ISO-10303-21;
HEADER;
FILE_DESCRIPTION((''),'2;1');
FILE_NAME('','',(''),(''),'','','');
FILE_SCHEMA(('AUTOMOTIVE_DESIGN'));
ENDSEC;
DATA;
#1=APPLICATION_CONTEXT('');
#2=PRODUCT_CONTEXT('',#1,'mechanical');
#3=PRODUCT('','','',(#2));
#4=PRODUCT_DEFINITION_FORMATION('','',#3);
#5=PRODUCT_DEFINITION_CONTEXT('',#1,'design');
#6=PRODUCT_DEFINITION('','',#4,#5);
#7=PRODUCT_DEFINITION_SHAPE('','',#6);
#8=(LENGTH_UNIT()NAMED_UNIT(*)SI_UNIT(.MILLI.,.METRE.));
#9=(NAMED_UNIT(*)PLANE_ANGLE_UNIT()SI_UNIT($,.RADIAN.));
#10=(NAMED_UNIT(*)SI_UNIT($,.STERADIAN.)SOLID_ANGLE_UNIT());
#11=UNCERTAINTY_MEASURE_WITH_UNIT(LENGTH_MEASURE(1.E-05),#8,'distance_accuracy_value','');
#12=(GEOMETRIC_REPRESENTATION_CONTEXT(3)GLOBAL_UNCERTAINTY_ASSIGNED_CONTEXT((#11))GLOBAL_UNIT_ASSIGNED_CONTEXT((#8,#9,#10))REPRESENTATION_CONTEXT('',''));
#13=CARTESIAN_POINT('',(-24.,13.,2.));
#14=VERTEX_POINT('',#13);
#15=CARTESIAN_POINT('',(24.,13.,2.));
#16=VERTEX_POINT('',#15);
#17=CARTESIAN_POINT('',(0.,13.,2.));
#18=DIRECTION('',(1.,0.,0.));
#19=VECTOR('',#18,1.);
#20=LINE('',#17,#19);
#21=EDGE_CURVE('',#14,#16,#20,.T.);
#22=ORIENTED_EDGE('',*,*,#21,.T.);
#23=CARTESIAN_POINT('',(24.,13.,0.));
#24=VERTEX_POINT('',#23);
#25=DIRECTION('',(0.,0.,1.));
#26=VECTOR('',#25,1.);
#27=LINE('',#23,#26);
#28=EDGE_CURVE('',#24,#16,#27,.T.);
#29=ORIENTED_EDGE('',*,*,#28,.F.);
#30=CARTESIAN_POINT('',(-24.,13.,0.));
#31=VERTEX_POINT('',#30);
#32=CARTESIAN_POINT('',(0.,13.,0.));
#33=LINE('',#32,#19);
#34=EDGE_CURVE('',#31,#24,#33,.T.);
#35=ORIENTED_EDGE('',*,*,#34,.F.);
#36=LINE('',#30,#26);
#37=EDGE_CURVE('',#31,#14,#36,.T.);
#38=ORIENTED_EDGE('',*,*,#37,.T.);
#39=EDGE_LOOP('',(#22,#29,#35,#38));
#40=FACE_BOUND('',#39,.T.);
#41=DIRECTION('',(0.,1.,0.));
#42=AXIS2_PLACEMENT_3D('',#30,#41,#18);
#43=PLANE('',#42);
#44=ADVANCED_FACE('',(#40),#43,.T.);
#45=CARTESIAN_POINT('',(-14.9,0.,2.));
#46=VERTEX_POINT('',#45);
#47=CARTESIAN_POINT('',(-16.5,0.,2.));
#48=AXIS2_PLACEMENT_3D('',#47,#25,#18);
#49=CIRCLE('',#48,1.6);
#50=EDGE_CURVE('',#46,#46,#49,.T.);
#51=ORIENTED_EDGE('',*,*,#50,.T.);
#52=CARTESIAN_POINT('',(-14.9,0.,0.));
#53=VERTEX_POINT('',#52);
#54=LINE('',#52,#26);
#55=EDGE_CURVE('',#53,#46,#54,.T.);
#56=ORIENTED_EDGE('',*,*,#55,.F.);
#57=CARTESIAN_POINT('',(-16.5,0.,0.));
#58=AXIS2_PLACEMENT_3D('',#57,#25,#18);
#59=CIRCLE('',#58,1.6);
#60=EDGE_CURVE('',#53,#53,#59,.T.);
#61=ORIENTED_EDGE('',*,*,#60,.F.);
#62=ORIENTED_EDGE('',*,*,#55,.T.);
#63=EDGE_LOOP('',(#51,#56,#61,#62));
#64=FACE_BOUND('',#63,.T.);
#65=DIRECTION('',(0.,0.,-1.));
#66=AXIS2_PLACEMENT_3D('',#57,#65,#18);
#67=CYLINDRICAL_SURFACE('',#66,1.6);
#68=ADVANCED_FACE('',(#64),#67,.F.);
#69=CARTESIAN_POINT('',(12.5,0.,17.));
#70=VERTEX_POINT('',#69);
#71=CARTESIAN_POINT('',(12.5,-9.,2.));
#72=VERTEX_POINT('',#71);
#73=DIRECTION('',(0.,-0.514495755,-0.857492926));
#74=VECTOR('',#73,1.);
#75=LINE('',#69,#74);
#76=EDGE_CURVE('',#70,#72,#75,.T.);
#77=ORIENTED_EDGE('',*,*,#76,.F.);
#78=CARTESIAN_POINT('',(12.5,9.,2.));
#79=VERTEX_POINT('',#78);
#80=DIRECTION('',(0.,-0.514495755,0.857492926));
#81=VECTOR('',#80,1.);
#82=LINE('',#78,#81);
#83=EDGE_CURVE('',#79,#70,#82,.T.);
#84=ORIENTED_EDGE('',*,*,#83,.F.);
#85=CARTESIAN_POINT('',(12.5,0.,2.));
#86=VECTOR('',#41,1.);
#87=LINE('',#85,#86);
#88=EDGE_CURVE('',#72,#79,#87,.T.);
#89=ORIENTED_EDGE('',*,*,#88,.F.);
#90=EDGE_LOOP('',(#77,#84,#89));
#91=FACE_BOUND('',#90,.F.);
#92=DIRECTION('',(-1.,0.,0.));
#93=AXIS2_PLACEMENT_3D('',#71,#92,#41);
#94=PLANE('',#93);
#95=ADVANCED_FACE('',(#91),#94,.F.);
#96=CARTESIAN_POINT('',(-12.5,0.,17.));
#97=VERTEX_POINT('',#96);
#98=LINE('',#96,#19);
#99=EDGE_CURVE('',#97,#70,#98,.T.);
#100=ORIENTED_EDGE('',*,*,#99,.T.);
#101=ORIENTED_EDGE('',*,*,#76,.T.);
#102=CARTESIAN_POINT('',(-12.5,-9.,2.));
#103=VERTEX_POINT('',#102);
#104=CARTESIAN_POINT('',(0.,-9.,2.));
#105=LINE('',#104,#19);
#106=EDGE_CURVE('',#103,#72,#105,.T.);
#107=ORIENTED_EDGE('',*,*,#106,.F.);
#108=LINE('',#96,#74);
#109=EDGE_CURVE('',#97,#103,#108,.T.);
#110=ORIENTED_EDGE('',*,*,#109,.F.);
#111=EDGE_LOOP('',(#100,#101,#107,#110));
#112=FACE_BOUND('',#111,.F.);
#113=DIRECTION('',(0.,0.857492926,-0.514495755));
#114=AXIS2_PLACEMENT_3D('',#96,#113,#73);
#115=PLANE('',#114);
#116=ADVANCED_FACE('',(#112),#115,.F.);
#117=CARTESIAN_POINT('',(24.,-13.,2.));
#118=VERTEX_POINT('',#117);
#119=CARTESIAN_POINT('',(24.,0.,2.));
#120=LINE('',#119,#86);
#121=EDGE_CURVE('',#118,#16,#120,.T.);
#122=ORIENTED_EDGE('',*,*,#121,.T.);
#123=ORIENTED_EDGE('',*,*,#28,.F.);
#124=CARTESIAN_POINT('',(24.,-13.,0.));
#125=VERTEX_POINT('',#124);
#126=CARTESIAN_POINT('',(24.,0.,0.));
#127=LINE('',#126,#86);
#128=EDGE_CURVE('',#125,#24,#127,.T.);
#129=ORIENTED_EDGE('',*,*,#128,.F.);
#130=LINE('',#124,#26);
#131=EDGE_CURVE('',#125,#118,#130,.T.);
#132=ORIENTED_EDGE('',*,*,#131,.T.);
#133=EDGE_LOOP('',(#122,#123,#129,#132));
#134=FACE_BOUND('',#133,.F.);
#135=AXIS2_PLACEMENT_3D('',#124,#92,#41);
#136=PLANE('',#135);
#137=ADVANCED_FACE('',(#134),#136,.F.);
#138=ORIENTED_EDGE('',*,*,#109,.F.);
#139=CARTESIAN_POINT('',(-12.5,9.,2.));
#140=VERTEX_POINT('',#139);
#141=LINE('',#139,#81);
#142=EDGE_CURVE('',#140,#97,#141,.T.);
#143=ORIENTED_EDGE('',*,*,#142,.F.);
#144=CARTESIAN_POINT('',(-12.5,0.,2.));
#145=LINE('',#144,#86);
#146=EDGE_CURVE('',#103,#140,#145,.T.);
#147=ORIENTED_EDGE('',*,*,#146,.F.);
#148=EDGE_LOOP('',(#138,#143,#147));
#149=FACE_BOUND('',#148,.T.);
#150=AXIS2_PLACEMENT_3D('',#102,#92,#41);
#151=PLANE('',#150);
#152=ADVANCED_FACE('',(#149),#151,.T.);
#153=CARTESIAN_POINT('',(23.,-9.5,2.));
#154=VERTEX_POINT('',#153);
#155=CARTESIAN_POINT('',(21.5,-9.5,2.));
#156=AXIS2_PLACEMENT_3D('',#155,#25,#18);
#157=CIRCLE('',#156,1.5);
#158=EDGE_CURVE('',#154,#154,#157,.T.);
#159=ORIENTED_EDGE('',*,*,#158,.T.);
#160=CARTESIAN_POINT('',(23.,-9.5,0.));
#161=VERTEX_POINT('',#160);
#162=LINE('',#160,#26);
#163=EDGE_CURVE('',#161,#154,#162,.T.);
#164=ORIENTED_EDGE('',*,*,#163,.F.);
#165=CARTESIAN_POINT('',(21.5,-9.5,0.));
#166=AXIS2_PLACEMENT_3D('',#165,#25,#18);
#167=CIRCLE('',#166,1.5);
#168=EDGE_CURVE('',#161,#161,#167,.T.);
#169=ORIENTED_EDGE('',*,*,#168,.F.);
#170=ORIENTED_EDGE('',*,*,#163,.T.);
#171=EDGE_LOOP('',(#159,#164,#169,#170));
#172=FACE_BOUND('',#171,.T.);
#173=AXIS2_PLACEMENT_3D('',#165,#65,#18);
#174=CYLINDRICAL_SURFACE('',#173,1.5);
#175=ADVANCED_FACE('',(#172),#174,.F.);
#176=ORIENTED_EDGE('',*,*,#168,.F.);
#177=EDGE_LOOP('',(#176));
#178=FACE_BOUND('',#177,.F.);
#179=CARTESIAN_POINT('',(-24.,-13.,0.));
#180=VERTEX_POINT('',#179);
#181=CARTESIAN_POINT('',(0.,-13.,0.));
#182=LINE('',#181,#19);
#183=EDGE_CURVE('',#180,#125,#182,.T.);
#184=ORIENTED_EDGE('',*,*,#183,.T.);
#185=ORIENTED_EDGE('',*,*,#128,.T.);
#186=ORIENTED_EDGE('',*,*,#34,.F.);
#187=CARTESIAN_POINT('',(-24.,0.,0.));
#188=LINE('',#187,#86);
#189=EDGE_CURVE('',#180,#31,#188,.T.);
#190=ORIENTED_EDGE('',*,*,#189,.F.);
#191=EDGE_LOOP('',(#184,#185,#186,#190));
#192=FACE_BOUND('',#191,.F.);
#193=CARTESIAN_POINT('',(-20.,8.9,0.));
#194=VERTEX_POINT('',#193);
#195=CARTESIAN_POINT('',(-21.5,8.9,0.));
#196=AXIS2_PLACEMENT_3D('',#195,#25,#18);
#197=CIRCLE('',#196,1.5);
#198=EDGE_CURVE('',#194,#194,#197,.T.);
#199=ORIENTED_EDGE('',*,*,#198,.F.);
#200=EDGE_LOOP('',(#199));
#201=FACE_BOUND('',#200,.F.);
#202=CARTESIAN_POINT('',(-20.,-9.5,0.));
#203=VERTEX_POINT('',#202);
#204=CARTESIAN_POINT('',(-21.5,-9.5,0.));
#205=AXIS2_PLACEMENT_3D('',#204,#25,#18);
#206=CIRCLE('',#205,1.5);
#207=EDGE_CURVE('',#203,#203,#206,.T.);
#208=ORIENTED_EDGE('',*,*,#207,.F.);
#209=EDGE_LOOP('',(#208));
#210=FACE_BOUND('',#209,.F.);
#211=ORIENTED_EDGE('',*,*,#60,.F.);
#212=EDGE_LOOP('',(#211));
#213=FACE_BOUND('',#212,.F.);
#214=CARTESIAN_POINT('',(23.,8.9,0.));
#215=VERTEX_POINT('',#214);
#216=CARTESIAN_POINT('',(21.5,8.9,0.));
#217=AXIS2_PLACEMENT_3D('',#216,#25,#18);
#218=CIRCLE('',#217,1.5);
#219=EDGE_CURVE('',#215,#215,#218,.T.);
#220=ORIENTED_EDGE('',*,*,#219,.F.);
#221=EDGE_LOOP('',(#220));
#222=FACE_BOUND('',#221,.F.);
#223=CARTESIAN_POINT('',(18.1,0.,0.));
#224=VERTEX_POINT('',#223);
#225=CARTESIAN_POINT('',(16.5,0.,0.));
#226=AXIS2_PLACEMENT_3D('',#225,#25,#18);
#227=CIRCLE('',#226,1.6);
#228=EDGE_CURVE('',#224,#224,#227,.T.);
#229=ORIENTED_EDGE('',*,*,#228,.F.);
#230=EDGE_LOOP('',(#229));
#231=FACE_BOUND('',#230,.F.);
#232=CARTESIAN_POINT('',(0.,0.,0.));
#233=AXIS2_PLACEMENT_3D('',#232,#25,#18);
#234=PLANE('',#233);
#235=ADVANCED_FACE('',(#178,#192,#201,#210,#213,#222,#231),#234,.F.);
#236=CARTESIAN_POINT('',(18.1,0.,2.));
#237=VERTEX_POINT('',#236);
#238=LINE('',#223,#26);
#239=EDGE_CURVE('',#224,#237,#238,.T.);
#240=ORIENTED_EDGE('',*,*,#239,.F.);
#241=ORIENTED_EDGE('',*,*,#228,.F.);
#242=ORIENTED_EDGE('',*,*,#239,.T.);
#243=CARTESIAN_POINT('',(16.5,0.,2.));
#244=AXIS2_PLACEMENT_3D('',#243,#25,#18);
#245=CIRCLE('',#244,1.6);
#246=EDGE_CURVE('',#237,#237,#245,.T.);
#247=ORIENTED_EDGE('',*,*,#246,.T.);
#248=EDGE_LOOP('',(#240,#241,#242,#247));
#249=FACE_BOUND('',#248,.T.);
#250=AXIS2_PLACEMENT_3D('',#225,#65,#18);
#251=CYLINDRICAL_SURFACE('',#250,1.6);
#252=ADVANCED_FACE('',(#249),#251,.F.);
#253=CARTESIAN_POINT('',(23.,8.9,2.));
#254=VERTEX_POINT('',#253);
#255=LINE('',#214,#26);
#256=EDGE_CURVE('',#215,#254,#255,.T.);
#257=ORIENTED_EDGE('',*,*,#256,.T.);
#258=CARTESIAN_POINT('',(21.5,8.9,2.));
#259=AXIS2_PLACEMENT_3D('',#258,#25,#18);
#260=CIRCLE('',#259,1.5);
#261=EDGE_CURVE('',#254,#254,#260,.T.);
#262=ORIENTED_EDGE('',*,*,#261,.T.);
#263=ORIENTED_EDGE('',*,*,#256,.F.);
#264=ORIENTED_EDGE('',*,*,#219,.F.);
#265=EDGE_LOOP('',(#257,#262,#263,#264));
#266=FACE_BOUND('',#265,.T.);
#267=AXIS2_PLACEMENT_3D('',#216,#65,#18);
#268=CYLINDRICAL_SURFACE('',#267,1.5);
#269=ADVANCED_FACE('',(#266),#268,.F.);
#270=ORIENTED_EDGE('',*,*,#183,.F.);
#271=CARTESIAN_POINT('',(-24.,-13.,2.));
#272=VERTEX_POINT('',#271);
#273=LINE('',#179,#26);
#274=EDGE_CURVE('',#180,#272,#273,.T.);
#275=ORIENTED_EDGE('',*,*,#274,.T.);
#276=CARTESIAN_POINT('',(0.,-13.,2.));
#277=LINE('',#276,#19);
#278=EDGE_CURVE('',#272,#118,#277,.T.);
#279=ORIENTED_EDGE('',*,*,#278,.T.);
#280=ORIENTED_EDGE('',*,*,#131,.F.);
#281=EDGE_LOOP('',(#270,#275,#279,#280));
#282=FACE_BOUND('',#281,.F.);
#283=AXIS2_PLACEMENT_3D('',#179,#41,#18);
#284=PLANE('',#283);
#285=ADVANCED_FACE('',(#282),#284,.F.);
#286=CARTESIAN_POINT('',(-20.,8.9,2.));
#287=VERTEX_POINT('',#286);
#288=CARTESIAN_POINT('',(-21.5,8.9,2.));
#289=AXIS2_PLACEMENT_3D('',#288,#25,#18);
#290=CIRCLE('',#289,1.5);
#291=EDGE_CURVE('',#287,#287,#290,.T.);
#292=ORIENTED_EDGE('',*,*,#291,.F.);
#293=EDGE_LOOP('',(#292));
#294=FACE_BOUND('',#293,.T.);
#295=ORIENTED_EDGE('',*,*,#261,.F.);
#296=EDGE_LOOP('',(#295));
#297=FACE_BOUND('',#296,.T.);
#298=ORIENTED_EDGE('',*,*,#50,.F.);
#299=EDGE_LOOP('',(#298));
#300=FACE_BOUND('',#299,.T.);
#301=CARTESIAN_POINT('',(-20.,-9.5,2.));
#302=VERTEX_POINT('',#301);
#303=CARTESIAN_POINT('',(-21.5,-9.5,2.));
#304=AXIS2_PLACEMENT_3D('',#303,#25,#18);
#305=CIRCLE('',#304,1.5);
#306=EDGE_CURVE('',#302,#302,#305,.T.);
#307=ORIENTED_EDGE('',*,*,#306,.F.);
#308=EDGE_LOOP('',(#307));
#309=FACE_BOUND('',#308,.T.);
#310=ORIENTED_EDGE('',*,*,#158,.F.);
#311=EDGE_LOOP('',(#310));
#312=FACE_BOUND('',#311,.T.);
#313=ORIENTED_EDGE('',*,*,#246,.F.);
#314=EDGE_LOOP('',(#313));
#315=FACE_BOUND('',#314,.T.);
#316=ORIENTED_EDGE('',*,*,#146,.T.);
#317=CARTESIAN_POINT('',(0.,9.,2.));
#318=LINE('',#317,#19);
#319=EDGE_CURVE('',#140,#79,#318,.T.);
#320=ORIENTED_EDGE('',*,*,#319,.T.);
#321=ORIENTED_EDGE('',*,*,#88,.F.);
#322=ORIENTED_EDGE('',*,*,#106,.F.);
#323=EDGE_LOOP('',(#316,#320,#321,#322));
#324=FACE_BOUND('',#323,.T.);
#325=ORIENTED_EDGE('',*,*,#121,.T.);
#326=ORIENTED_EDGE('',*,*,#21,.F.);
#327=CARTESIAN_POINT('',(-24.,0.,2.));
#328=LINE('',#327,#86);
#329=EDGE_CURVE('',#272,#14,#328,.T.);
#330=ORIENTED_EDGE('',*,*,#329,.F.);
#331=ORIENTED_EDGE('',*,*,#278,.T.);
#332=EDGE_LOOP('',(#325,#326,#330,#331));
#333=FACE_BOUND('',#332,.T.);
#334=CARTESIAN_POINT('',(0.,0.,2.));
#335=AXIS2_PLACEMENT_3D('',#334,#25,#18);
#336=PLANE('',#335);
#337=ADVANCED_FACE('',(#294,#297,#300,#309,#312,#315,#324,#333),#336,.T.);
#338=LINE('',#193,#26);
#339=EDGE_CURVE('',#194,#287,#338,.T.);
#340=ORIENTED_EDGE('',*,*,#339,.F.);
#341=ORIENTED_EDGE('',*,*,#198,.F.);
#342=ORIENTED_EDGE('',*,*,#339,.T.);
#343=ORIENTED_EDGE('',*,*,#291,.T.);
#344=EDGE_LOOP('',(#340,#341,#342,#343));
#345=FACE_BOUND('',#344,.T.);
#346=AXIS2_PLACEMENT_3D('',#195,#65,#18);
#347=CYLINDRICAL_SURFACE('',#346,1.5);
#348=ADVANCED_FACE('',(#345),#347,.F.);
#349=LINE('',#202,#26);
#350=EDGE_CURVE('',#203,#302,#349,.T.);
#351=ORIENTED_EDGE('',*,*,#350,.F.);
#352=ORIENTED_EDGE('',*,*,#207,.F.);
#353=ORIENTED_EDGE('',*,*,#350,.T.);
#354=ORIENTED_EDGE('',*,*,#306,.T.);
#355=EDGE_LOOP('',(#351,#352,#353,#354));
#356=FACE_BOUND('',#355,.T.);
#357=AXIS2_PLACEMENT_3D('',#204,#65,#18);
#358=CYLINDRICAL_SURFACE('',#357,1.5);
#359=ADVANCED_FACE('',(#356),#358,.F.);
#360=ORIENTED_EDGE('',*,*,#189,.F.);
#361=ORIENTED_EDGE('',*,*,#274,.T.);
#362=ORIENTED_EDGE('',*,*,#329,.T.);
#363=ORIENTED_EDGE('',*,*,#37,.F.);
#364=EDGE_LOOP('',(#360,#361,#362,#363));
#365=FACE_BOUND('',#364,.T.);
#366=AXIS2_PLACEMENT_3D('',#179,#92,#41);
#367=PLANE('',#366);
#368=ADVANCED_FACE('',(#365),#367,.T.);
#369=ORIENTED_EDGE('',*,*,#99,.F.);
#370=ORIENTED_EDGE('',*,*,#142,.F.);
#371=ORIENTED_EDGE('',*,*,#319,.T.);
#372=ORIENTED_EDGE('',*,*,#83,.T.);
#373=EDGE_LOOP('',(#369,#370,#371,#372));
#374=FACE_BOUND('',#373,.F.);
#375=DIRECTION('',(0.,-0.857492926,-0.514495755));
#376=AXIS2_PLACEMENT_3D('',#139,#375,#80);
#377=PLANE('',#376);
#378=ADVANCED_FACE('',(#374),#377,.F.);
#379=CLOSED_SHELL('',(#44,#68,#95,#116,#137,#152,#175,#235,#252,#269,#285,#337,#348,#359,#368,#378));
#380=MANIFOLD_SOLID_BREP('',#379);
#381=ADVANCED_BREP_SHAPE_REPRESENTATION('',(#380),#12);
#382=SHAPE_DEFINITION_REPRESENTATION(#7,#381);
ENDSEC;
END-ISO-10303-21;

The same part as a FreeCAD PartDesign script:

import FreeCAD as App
import Part
import Sketcher
from FreeCAD import Vector


def add_polygon(sketch, points):
    """Adds a closed chain of lines whose ends are joined by coincident constraints."""
    first, n = sketch.GeometryCount, len(points)
    for a, b in zip(points, points[1:] + points[:1]):
        sketch.addGeometry(Part.LineSegment(App.Vector(*a, 0), App.Vector(*b, 0)), False)
    for i in range(n):
        sketch.addConstraint(Sketcher.Constraint("Coincident", first + i, 2, first + (i + 1) % n, 1))

doc = App.newDocument("Part")
body = doc.addObject("PartDesign::Body", "Body")

sketch1 = body.newObject("Sketcher::SketchObject", "Sketch")
sketch1.AttachmentSupport = (doc.getObject("XY_Plane"), [""])
sketch1.MapMode = "FlatFace"
add_polygon(sketch1, [(-24, 13), (-24, -13), (24, -13), (24, 13)])
sketch1.addGeometry(Part.Circle(Vector(-21.5, -9.5, 0), Vector(0, 0, 1), 1.5), False)
sketch1.addGeometry(Part.Circle(Vector(21.5, -9.5, 0), Vector(0, 0, 1), 1.5), False)
sketch1.addGeometry(Part.Circle(Vector(-16.5, 0, 0), Vector(0, 0, 1), 1.6), False)
sketch1.addGeometry(Part.Circle(Vector(-21.5, 8.9, 0), Vector(0, 0, 1), 1.5), False)
sketch1.addGeometry(Part.Circle(Vector(16.5, 0, 0), Vector(0, 0, 1), 1.6), False)
sketch1.addGeometry(Part.Circle(Vector(21.5, 8.9, 0), Vector(0, 0, 1), 1.5), False)
sketch1.addConstraint(Sketcher.Constraint("Vertical", 0))
sketch1.addConstraint(Sketcher.Constraint("Horizontal", 1))
sketch1.addConstraint(Sketcher.Constraint("Vertical", 2))
sketch1.addConstraint(Sketcher.Constraint("Horizontal", 3))
sketch1.addConstraint(Sketcher.Constraint("Equal", 4, 5))
sketch1.addConstraint(Sketcher.Constraint("Equal", 5, 7))
sketch1.addConstraint(Sketcher.Constraint("Equal", 6, 8))
sketch1.addConstraint(Sketcher.Constraint("Equal", 7, 9))
sketch1.addConstraint(Sketcher.Constraint("Symmetric", 6, 3, 8, 3, -1, 1))
sketch1.addConstraint(Sketcher.Constraint("Symmetric", 0, 2, 2, 2, -1, 1))
sketch1.addConstraint(Sketcher.Constraint("Symmetric", 4, 3, 5, 3, -2))
sketch1.addConstraint(Sketcher.Constraint("Symmetric", 7, 3, 9, 3, -2))
sketch1.addConstraint(Sketcher.Constraint("PointOnObject", 6, 3, -1))
sketch1.addConstraint(Sketcher.Constraint("Vertical", 4, 3, 7, 3))
sketch1.addConstraint(Sketcher.Constraint("Diameter", 4, 3.0))
sketch1.addConstraint(Sketcher.Constraint("Diameter", 6, 3.2))
sketch1.addConstraint(Sketcher.Constraint("DistanceX", 1, 1, 1, 2, 48.0))
sketch1.addConstraint(Sketcher.Constraint("DistanceY", 0, 2, 0, 1, 26.0))
sketch1.addConstraint(Sketcher.Constraint("DistanceX", 4, 3, 5, 3, 43.0))
sketch1.addConstraint(Sketcher.Constraint("DistanceX", 4, 3, 6, 3, 5.0))
sketch1.addConstraint(Sketcher.Constraint("DistanceY", 4, 3, -1, 1, 9.5))
sketch1.addConstraint(Sketcher.Constraint("DistanceY", -1, 1, 7, 3, 8.9))
pad1 = body.newObject("PartDesign::Pad", "Pad")
pad1.Profile = sketch1
pad1.Length = 2

sketch2 = body.newObject("Sketcher::SketchObject", "Sketch001")
sketch2.AttachmentSupport = (doc.getObject("XY_Plane"), [""])
sketch2.MapMode = "FlatFace"
sketch2.AttachmentOffset = App.Placement(Vector(0, 0, 2), App.Rotation())
add_polygon(sketch2, [(-12, 9), (-12, -9), (12, -9), (12, 9)])
sketch2.addConstraint(Sketcher.Constraint("Vertical", 0))
sketch2.addConstraint(Sketcher.Constraint("Horizontal", 1))
sketch2.addConstraint(Sketcher.Constraint("Vertical", 2))
sketch2.addConstraint(Sketcher.Constraint("Horizontal", 3))
sketch2.addConstraint(Sketcher.Constraint("Symmetric", 0, 2, 2, 2, -1, 1))
sketch2.addConstraint(Sketcher.Constraint("DistanceX", 1, 1, 1, 2, 25.0))
sketch2.addConstraint(Sketcher.Constraint("DistanceY", 0, 2, 0, 1, 18.0))
pad2 = body.newObject("PartDesign::Pad", "Pad001")
pad2.Profile = sketch2
pad2.Length = 15

sketch3 = body.newObject("Sketcher::SketchObject", "Sketch002")
sketch3.AttachmentSupport = (doc.getObject("YZ_Plane"), [""])
sketch3.MapMode = "FlatFace"
sketch3.AttachmentOffset = App.Placement(Vector(0, 0, -12.5), App.Rotation())
add_polygon(sketch3, [(9, 17), (9, 2), (0, 17)])
add_polygon(sketch3, [(-9, 17), (0, 17), (-9, 2)])
sketch3.addConstraint(Sketcher.Constraint("Vertical", 0))
sketch3.addConstraint(Sketcher.Constraint("Horizontal", 2))
sketch3.addConstraint(Sketcher.Constraint("Horizontal", 3))
sketch3.addConstraint(Sketcher.Constraint("Vertical", 5))
sketch3.addConstraint(Sketcher.Constraint("Coincident", 3, 2, 1, 2))
sketch3.addConstraint(Sketcher.Constraint("Symmetric", 0, 2, 4, 2, -2))
sketch3.addConstraint(Sketcher.Constraint("PointOnObject", 1, 2, -2))
sketch3.addConstraint(Sketcher.Constraint("DistanceX", 2, 1, 2, 2, 9.0))
sketch3.addConstraint(Sketcher.Constraint("DistanceY", 0, 2, 0, 1, 15.0))
sketch3.addConstraint(Sketcher.Constraint("DistanceY", -1, 1, 0, 2, 2.0))
pocket1 = body.newObject("PartDesign::Pocket", "Pocket")
pocket1.Profile = sketch3
pocket1.Length = 25
pocket1.Reversed = True

doc.recompute()
